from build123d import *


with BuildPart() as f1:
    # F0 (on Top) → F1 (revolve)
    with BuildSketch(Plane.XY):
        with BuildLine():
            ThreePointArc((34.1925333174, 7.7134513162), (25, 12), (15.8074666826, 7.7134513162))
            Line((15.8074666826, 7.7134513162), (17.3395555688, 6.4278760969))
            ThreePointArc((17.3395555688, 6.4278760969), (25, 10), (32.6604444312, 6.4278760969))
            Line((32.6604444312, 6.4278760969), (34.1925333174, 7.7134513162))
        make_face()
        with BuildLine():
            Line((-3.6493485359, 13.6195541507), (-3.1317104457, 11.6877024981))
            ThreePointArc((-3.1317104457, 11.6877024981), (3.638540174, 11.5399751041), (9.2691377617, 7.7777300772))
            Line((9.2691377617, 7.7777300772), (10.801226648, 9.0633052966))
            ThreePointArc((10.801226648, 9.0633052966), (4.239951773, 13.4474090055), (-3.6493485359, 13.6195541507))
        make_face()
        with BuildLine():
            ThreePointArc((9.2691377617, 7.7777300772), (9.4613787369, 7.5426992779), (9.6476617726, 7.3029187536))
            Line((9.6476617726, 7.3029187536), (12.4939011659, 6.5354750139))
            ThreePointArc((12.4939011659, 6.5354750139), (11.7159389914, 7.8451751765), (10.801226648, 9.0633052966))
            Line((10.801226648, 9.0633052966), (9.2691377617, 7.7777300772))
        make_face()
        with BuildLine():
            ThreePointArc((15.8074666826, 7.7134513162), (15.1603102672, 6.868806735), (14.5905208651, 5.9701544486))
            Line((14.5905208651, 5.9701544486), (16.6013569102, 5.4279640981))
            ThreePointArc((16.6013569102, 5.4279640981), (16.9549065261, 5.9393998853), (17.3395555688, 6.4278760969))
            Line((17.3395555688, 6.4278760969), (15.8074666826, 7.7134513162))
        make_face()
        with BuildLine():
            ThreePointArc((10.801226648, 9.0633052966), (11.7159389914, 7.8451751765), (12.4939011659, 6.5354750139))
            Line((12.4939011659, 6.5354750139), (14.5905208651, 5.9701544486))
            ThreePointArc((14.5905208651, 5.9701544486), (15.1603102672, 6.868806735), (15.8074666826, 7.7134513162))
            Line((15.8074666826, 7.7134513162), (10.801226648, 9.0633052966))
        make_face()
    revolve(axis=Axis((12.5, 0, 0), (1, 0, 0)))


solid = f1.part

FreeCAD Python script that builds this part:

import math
import FreeCAD as App
import Part
import Sketcher
from FreeCAD import Vector
Q = App.Units.Quantity

doc = App.newDocument("Part")
body = doc.addObject("PartDesign::Body", "Body")

# Sketch on XY plane
sketch1 = body.newObject("Sketcher::SketchObject", "Sketch")
sketch1.AttachmentSupport = (doc.getObject("XY_Plane"), [""])
sketch1.MapMode = "FlatFace"
sketch1.addGeometry(Part.ArcOfCircle(Part.Circle(Vector(25, 0, 0), Vector(0, 0, 1), 12), math.radians(40), math.radians(140)), False)
sketch1.addGeometry(Part.LineSegment(Vector(15.807467, 7.713451, 0), Vector(10.801227, 9.063305, 0)), False)
sketch1.addGeometry(Part.ArcOfCircle(Part.Circle(Vector(0, 0, 0), Vector(0, 0, 1), 14.1), math.radians(40), math.radians(105)), False)
sketch1.addGeometry(Part.LineSegment(Vector(-3.649349, 13.619554, 0), Vector(-3.13171, 11.687702, 0)), False)
sketch1.addGeometry(Part.ArcOfCircle(Part.Circle(Vector(0, 0, 0), Vector(0, 0, 1), 12.1), math.radians(40), math.radians(105)), False)
sketch1.addGeometry(Part.ArcOfCircle(Part.Circle(Vector(0, 0, 0), Vector(0, 0, 1), 12.1), math.radians(37.124358), math.radians(40)), False)
sketch1.addGeometry(Part.LineSegment(Vector(9.647662, 7.302919, 0), Vector(12.493901, 6.535475, 0)), False)
sketch1.addGeometry(Part.LineSegment(Vector(12.493901, 6.535475, 0), Vector(14.590521, 5.970154, 0)), False)
sketch1.addGeometry(Part.LineSegment(Vector(14.590521, 5.970154, 0), Vector(16.601357, 5.427964, 0)), False)
sketch1.addGeometry(Part.ArcOfCircle(Part.Circle(Vector(25, 0, 0), Vector(0, 0, 1), 10), math.radians(140), math.radians(147.125794)), False)
sketch1.addGeometry(Part.ArcOfCircle(Part.Circle(Vector(25, 0, 0), Vector(0, 0, 1), 10), math.radians(40), math.radians(140)), False)
sketch1.addGeometry(Part.LineSegment(Vector(32.660444, 6.427876, 0), Vector(34.192533, 7.713451, 0)), False)
sketch1.addConstraint(Sketcher.Constraint("Coincident", 0, 2, 1, 1))
sketch1.addConstraint(Sketcher.Constraint("Coincident", 1, 2, 2, 1))
sketch1.addConstraint(Sketcher.Constraint("Coincident", 2, 2, 3, 1))
sketch1.addConstraint(Sketcher.Constraint("Coincident", 3, 2, 4, 2))
sketch1.addConstraint(Sketcher.Constraint("Tangent", 4, 1, 5, 2))
sketch1.addConstraint(Sketcher.Constraint("Coincident", 5, 1, 6, 1))
sketch1.addConstraint(Sketcher.Constraint("Coincident", 6, 2, 7, 1))
sketch1.addConstraint(Sketcher.Constraint("Coincident", 7, 2, 8, 1))
sketch1.addConstraint(Sketcher.Constraint("Coincident", 8, 2, 9, 2))
sketch1.addConstraint(Sketcher.Constraint("Tangent", 9, 1, 10, 2))
sketch1.addConstraint(Sketcher.Constraint("Coincident", 10, 1, 11, 1))
sketch1.addConstraint(Sketcher.Constraint("Coincident", 11, 2, 0, 1))
sketch1.addConstraint(Sketcher.Constraint("Coincident", 2, 3, -1, 1))
sketch1.addConstraint(Sketcher.Constraint("Coincident", 4, 3, -1, 1))
sketch1.addConstraint(Sketcher.Constraint("Coincident", 9, 3, 0, 3))
sketch1.addConstraint(Sketcher.Constraint("Equal", 4, 5))
sketch1.addConstraint(Sketcher.Constraint("Equal", 9, 10))
sketch1.addConstraint(Sketcher.Constraint("PointOnObject", 0, 3, -1))
sketch1.addConstraint(Sketcher.Constraint("Parallel", 1, 6))
sketch1.addConstraint(Sketcher.Constraint("Parallel", 6, 7))
sketch1.addConstraint(Sketcher.Constraint("Parallel", 7, 8))
sketch1.addConstraint(Sketcher.Constraint("Horizontal", 9, 1, 10, 1))
sketch1.addConstraint(Sketcher.Constraint("Horizontal", 0, 2, 11, 2))
sketch1.addConstraint(Sketcher.Constraint("Equal", 3, 11))
sketch1.addConstraint(Sketcher.Constraint("Radius", 0, Q("12 mm")))
sketch1.addConstraint(Sketcher.Constraint("Radius", 9, Q("10 mm")))
sketch1.addConstraint(Sketcher.Constraint("Radius", 2, Q("14.1 mm")))
sketch1.addConstraint(Sketcher.Constraint("Angle", 3, Q("-75 deg")))
sketch1.addConstraint(Sketcher.Constraint("Angle", 11, Q("40 deg")))
sketch1.addConstraint(Sketcher.Constraint("DistanceX", -1, 1, 0, 3, Q("25 mm")))
sketch1.addConstraint(Sketcher.Constraint("DistanceX", -1, 1, 6, 2, Q("12.493901 mm")))
sketch1.addConstraint(Sketcher.Constraint("DistanceX", 8, 2, 9, 1, Q("0.738199 mm")))
sketch1.addConstraint(Sketcher.Constraint("DistanceY", 9, 1, 6, 2, Q("0.107599 mm")))
sketch1.addConstraint(Sketcher.Constraint("Distance", 1, Q("5.185031 mm")))
sketch1.addConstraint(Sketcher.Constraint("Distance", 8, Q("2.08265 mm")))
sketch1.addConstraint(Sketcher.Constraint("DistanceX", 2, 2, -1, 1, Q("3.649349 mm")))
sketch1.addConstraint(Sketcher.Constraint("DistanceY", -1, 1, 4, 1, Q("7.77773 mm")))
revolution = body.newObject("PartDesign::Revolution", "Revolution")
revolution.Profile = sketch1
revolution.ReferenceAxis = (sketch1, ["H_Axis"])
revolution.Angle = 360

doc.recompute()
